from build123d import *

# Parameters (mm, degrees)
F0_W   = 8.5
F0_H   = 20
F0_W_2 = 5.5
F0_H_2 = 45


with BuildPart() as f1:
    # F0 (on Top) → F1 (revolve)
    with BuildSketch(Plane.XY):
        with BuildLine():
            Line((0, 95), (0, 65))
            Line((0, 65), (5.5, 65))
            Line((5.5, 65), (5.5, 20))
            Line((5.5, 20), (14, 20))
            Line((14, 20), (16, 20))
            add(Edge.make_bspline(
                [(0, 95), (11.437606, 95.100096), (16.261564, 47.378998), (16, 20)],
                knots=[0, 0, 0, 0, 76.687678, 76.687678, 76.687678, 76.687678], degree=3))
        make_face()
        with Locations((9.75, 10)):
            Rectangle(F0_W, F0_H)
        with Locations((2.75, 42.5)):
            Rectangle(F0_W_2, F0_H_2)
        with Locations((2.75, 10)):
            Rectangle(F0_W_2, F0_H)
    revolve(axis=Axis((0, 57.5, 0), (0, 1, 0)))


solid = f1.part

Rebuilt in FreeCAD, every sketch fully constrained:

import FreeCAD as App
import Part
import Sketcher
from FreeCAD import Vector
Q = App.Units.Quantity

doc = App.newDocument("Part")
body = doc.addObject("PartDesign::Body", "Body")

sketch1 = doc.addObject("Sketcher::SketchObject", "Sketch")
body.addObject(sketch1)
sketch1.AttachmentSupport = (doc.XY_Plane, [""])
sketch1.MapMode = "FlatFace"
sketch1.addGeometry([
    Part.LineSegment(Vector(0, 95, 0), Vector(0, 0, 0)),
    Part.LineSegment(Vector(0, 0, 0), Vector(14, 0, 0)),
    Part.LineSegment(Vector(14, 0, 0), Vector(14, 20, 0)),
    Part.LineSegment(Vector(14, 20, 0), Vector(16, 20, 0)),
    Part.BSplineCurve([Vector(0, 95, 0), Vector(11.437606, 95.100096, 0), Vector(16.261564, 47.378998, 0), Vector(16, 20, 0)], [4, 4], [0, 76.687678], False, 3, [1, 1, 1, 1], False),
], False)
sketch1.addConstraint([
    Sketcher.Constraint("Block", 4),
    Sketcher.Constraint("Coincident", 0, 2, 1, 1),
    Sketcher.Constraint("Coincident", 1, 2, 2, 1),
    Sketcher.Constraint("Coincident", 2, 2, 3, 1),
    Sketcher.Constraint("Coincident", 3, 2, 4, 2),
    Sketcher.Constraint("Coincident", 4, 1, 0, 1),
    Sketcher.Constraint("Vertical", 0),
    Sketcher.Constraint("Horizontal", 1),
    Sketcher.Constraint("Vertical", 2),
    Sketcher.Constraint("Horizontal", 3),
    Sketcher.Constraint("PointOnObject", 1, 2, -1),
    Sketcher.Constraint("DistanceX", 1, 1, 1, 2, Q("14 mm")),
])
revolution = doc.addObject("PartDesign::Revolution", "Revolution")
body.addObject(revolution)
revolution.Profile = sketch1
revolution.ReferenceAxis = (sketch1, ["V_Axis"])
revolution.Angle = 360

doc.recompute()
